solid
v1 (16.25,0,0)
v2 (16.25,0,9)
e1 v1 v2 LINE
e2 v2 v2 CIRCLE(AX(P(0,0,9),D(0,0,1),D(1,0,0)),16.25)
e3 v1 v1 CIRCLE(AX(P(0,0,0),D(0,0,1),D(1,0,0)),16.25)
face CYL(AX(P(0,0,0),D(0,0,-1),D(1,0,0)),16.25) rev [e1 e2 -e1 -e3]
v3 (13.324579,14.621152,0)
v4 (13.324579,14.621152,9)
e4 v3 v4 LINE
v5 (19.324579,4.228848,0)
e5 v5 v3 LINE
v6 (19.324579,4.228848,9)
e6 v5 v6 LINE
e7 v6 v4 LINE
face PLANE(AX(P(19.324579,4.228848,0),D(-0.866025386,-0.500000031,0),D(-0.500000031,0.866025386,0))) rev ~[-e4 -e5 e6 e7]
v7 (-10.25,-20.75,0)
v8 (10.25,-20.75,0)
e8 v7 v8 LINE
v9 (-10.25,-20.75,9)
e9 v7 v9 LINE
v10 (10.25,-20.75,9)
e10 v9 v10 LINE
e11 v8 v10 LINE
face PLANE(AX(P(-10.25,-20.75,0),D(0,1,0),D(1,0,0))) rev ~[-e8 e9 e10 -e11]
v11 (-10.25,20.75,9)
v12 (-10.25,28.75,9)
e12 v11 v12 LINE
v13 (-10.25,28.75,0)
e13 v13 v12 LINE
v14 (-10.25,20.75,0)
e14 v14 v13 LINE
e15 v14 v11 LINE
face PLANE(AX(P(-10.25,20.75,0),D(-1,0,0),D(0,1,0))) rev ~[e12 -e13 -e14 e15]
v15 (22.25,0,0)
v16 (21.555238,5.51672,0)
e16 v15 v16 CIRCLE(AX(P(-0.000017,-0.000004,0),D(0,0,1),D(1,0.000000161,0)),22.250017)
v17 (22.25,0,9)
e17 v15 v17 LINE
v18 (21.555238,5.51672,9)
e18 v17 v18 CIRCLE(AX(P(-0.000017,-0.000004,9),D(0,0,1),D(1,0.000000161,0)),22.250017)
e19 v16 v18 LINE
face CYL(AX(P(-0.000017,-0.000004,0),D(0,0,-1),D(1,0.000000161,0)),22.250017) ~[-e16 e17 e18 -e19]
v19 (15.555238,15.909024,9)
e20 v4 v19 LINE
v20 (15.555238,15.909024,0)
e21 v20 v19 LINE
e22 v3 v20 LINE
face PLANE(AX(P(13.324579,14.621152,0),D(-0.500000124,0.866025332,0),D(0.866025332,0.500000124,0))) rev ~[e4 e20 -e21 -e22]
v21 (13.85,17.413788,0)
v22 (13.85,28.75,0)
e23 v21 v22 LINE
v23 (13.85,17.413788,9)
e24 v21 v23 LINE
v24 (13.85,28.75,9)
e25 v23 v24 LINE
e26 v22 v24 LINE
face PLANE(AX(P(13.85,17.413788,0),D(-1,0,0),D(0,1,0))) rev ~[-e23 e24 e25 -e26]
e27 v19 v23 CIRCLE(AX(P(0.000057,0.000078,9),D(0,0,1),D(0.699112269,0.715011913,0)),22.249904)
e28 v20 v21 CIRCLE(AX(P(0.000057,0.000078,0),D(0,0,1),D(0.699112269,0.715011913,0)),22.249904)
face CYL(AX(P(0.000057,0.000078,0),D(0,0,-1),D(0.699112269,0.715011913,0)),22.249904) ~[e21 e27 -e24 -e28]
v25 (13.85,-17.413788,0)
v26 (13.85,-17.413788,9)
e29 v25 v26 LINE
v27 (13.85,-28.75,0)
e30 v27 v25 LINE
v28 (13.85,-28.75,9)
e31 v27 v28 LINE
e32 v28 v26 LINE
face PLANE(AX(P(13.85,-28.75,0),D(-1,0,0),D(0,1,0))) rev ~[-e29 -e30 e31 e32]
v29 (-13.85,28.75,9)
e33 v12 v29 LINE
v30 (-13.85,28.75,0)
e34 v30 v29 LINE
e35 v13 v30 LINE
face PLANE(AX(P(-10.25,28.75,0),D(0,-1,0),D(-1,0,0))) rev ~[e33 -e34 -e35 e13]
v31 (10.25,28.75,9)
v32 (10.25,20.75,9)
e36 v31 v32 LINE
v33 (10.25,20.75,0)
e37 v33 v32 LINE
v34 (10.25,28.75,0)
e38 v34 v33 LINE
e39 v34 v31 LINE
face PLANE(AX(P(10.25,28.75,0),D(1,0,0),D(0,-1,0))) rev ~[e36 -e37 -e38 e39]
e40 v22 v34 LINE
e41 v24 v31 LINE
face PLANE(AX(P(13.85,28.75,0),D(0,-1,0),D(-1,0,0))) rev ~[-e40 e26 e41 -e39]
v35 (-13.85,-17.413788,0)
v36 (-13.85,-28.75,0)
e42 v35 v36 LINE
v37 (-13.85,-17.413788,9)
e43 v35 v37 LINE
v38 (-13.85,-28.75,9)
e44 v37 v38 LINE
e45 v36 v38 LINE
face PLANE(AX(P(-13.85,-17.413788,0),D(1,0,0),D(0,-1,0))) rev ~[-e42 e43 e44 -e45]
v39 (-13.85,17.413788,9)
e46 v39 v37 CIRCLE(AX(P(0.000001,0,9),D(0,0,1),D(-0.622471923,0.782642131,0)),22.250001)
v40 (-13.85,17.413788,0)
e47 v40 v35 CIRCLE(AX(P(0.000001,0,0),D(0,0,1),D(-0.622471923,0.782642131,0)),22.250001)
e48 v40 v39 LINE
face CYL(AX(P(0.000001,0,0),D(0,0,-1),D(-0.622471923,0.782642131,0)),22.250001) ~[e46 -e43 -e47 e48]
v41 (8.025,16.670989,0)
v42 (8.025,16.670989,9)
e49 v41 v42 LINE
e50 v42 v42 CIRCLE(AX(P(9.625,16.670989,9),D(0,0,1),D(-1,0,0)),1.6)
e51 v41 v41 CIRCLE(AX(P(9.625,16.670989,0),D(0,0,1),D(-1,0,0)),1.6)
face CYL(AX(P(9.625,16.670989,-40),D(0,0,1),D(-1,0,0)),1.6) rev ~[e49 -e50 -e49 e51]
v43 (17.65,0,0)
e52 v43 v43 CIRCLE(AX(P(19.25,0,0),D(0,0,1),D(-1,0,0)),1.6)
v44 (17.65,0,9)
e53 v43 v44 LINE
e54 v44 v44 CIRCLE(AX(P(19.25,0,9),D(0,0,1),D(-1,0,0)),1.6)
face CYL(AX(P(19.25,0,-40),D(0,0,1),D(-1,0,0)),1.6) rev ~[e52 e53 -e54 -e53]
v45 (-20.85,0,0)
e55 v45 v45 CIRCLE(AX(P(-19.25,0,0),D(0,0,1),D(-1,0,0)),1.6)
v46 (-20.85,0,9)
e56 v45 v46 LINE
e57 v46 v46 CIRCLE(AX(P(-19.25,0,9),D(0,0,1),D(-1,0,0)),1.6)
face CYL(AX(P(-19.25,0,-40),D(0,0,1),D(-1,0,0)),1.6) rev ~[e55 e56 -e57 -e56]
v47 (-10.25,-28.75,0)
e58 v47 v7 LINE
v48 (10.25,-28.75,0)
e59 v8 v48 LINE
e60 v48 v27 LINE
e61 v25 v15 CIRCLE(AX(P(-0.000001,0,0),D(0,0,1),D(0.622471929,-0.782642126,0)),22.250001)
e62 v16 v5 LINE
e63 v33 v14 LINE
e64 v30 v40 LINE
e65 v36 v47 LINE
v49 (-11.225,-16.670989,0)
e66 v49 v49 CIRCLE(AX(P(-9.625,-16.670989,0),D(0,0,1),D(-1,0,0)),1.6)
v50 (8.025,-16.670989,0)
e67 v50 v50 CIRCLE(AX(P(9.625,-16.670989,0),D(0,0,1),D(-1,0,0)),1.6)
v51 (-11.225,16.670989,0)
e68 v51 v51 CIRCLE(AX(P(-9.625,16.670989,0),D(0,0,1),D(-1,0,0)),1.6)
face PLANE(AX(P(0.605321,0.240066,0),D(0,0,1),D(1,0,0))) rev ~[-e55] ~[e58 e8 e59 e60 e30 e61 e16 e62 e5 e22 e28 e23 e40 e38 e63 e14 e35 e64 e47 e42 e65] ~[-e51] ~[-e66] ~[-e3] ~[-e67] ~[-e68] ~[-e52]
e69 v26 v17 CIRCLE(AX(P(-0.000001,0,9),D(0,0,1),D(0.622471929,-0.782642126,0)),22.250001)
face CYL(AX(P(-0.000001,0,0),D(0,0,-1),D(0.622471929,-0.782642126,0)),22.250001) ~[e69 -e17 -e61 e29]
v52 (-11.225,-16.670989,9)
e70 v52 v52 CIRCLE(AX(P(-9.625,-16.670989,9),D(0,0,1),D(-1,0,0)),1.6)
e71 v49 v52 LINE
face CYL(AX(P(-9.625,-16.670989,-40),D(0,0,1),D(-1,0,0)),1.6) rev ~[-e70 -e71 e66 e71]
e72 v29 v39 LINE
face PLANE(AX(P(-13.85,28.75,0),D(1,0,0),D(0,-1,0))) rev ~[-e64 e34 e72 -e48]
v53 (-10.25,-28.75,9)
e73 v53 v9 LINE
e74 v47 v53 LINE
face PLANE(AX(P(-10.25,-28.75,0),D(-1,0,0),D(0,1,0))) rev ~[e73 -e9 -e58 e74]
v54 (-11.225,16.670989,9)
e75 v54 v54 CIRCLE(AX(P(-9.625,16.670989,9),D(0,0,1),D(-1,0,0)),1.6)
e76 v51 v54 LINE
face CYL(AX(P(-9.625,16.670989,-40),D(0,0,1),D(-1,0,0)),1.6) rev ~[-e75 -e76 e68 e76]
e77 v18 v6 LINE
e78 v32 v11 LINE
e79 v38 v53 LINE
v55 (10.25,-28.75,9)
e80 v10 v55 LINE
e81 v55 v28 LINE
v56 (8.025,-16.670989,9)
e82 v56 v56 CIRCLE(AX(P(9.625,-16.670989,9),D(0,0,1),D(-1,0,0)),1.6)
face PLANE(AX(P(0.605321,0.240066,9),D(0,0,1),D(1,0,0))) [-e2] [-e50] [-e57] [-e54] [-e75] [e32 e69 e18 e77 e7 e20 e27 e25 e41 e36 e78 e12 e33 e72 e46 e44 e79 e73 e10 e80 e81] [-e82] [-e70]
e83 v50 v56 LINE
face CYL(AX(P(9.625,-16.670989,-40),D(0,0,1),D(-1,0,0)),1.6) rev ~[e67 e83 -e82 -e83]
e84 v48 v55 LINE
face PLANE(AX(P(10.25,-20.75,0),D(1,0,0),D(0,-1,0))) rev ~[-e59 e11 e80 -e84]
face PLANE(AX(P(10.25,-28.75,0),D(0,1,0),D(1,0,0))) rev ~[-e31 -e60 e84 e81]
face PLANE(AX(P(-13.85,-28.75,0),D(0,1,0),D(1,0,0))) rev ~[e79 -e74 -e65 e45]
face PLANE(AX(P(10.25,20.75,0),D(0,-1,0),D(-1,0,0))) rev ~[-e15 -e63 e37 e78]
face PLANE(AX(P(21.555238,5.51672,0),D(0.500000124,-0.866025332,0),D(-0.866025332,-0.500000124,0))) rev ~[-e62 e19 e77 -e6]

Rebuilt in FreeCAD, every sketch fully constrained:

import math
import FreeCAD as App
import Part
import Sketcher

V = App.Vector

doc = App.newDocument("Part")
body = doc.addObject("PartDesign::Body", "Body")

# Sketch on XY plane
sketch1 = body.newObject("Sketcher::SketchObject", "Sketch")
sketch1.AttachmentSupport = (doc.getObject("XY_Plane"), [""])
sketch1.MapMode = "FlatFace"
sketch1.addGeometry(Part.ArcOfCircle(Part.Circle(V(-0.000001, 0, 0), V(0, 0, 1), 22.250001), math.radians(-51.503127), math.radians(0)), False)
sketch1.addGeometry(Part.ArcOfCircle(Part.Circle(V(-0.000017, -0.000004, 0), V(0, 0, 1), 22.250017), math.radians(0.000009), math.radians(14.35579)), False)
sketch1.addGeometry(Part.LineSegment(V(21.555238, 5.51672, 0), V(19.324579, 4.228848, 0)), False)
sketch1.addGeometry(Part.LineSegment(V(19.324579, 4.228848, 0), V(13.324579, 14.621152, 0)), False)
sketch1.addGeometry(Part.LineSegment(V(13.324579, 14.621152, 0), V(15.555238, 15.909024, 0)), False)
sketch1.addGeometry(Part.ArcOfCircle(Part.Circle(V(0.000057, 0.000078, 0), V(0, 0, 1), 22.249904), math.radians(45.644175), math.radians(51.503119)), False)
sketch1.addGeometry(Part.LineSegment(V(13.85, 17.413788, 0), V(13.85, 28.75, 0)), False)
sketch1.addGeometry(Part.LineSegment(V(13.85, 28.75, 0), V(10.25, 28.75, 0)), False)
sketch1.addGeometry(Part.LineSegment(V(10.25, 28.75, 0), V(10.25, 20.75, 0)), False)
sketch1.addGeometry(Part.LineSegment(V(10.25, 20.75, 0), V(-10.25, 20.75, 0)), False)
sketch1.addGeometry(Part.LineSegment(V(-10.25, 20.75, 0), V(-10.25, 28.75, 0)), False)
sketch1.addGeometry(Part.LineSegment(V(-10.25, 28.75, 0), V(-13.85, 28.75, 0)), False)
sketch1.addGeometry(Part.LineSegment(V(-13.85, 28.75, 0), V(-13.85, 17.413788, 0)), False)
sketch1.addGeometry(Part.ArcOfCircle(Part.Circle(V(0.000001, 0, 0), V(0, 0, 1), 22.250001), math.radians(128.496873), math.radians(231.503127)), False)
sketch1.addGeometry(Part.LineSegment(V(-13.85, -17.413788, 0), V(-13.85, -28.75, 0)), False)
sketch1.addGeometry(Part.LineSegment(V(-13.85, -28.75, 0), V(-10.25, -28.75, 0)), False)
sketch1.addGeometry(Part.LineSegment(V(-10.25, -28.75, 0), V(-10.25, -20.75, 0)), False)
sketch1.addGeometry(Part.LineSegment(V(-10.25, -20.75, 0), V(10.25, -20.75, 0)), False)
sketch1.addGeometry(Part.LineSegment(V(10.25, -20.75, 0), V(10.25, -28.75, 0)), False)
sketch1.addGeometry(Part.LineSegment(V(10.25, -28.75, 0), V(13.85, -28.75, 0)), False)
sketch1.addGeometry(Part.LineSegment(V(13.85, -28.75, 0), V(13.85, -17.413788, 0)), False)
sketch1.addGeometry(Part.Circle(V(0, 0, 0), V(0, 0, 1), 16.25), False)
sketch1.addConstraint(Sketcher.Constraint("Coincident", 0, 2, 1, 1))
sketch1.addConstraint(Sketcher.Constraint("Coincident", 1, 2, 2, 1))
sketch1.addConstraint(Sketcher.Constraint("Coincident", 2, 2, 3, 1))
sketch1.addConstraint(Sketcher.Constraint("Coincident", 3, 2, 4, 1))
sketch1.addConstraint(Sketcher.Constraint("Coincident", 4, 2, 5, 1))
sketch1.addConstraint(Sketcher.Constraint("Coincident", 5, 2, 6, 1))
sketch1.addConstraint(Sketcher.Constraint("Coincident", 6, 2, 7, 1))
sketch1.addConstraint(Sketcher.Constraint("Coincident", 7, 2, 8, 1))
sketch1.addConstraint(Sketcher.Constraint("Coincident", 8, 2, 9, 1))
sketch1.addConstraint(Sketcher.Constraint("Coincident", 9, 2, 10, 1))
sketch1.addConstraint(Sketcher.Constraint("Coincident", 10, 2, 11, 1))
sketch1.addConstraint(Sketcher.Constraint("Coincident", 11, 2, 12, 1))
sketch1.addConstraint(Sketcher.Constraint("Coincident", 12, 2, 13, 1))
sketch1.addConstraint(Sketcher.Constraint("Coincident", 13, 2, 14, 1))
sketch1.addConstraint(Sketcher.Constraint("Coincident", 14, 2, 15, 1))
sketch1.addConstraint(Sketcher.Constraint("Coincident", 15, 2, 16, 1))
sketch1.addConstraint(Sketcher.Constraint("Coincident", 16, 2, 17, 1))
sketch1.addConstraint(Sketcher.Constraint("Coincident", 17, 2, 18, 1))
sketch1.addConstraint(Sketcher.Constraint("Coincident", 18, 2, 19, 1))
sketch1.addConstraint(Sketcher.Constraint("Coincident", 19, 2, 20, 1))
sketch1.addConstraint(Sketcher.Constraint("Coincident", 20, 2, 0, 1))
sketch1.addConstraint(Sketcher.Constraint("Vertical", 6))
sketch1.addConstraint(Sketcher.Constraint("Horizontal", 7))
sketch1.addConstraint(Sketcher.Constraint("Vertical", 8))
sketch1.addConstraint(Sketcher.Constraint("Horizontal", 9))
sketch1.addConstraint(Sketcher.Constraint("Vertical", 10))
sketch1.addConstraint(Sketcher.Constraint("Horizontal", 11))
sketch1.addConstraint(Sketcher.Constraint("Vertical", 12))
sketch1.addConstraint(Sketcher.Constraint("Vertical", 14))
sketch1.addConstraint(Sketcher.Constraint("Horizontal", 15))
sketch1.addConstraint(Sketcher.Constraint("Vertical", 16))
sketch1.addConstraint(Sketcher.Constraint("Horizontal", 17))
sketch1.addConstraint(Sketcher.Constraint("Vertical", 18))
sketch1.addConstraint(Sketcher.Constraint("Horizontal", 19))
sketch1.addConstraint(Sketcher.Constraint("Vertical", 20))
sketch1.addConstraint(Sketcher.Constraint("Coincident", 0, 3, -1, 1))
sketch1.addConstraint(Sketcher.Constraint("Coincident", 13, 3, -1, 1))
sketch1.addConstraint(Sketcher.Constraint("Coincident", 21, 3, -1, 1))
sketch1.addConstraint(Sketcher.Constraint("PointOnObject", 0, 2, -1))
sketch1.addConstraint(Sketcher.Constraint("Diameter", 21, 32.5))
sketch1.addConstraint(Sketcher.Constraint("DistanceY", 8, 2, 8, 1, 8.0))
sketch1.addConstraint(Sketcher.Constraint("DistanceY", 10, 1, 10, 2, 8.0))
sketch1.addConstraint(Sketcher.Constraint("DistanceY", 16, 1, 16, 2, 8.0))
sketch1.addConstraint(Sketcher.Constraint("DistanceY", 18, 2, 18, 1, 8.0))
sketch1.addConstraint(Sketcher.Constraint("Radius", 0, 22.250001))
sketch1.addConstraint(Sketcher.Constraint("Radius", 13, 22.250001))
sketch1.addConstraint(Sketcher.Constraint("Distance", 3, 11.999999))
sketch1.addConstraint(Sketcher.Constraint("DistanceX", 7, 2, 7, 1, 3.6))
sketch1.addConstraint(Sketcher.Constraint("DistanceX", 9, 2, 9, 1, 20.5))
sketch1.addConstraint(Sketcher.Constraint("DistanceX", 11, 2, 11, 1, 3.6))
sketch1.addConstraint(Sketcher.Constraint("DistanceX", 15, 1, 15, 2, 3.6))
sketch1.addConstraint(Sketcher.Constraint("DistanceX", 17, 1, 17, 2, 20.5))
sketch1.addConstraint(Sketcher.Constraint("DistanceX", 19, 1, 19, 2, 3.6))
sketch1.addConstraint(Sketcher.Constraint("DistanceX", 3, 2, 2, 2, 6.0))
sketch1.addConstraint(Sketcher.Constraint("DistanceX", 4, 2, 1, 2, 6.0))
sketch1.addConstraint(Sketcher.Constraint("DistanceX", 5, 2, 0, 2, 8.4))
sketch1.addConstraint(Sketcher.Constraint("DistanceX", 20, 2, 0, 2, 8.4))
sketch1.addConstraint(Sketcher.Constraint("DistanceY", -1, 1, 6, 2, 28.75))
sketch1.addConstraint(Sketcher.Constraint("DistanceY", 14, 2, -1, 1, 28.75))
sketch1.addConstraint(Sketcher.Constraint("Radius", 1, 22.250017))
sketch1.addConstraint(Sketcher.Constraint("Radius", 5, 22.249904))
sketch1.addConstraint(Sketcher.Constraint("DistanceY", 6, 1, 6, 2, 11.336212))
sketch1.addConstraint(Sketcher.Constraint("DistanceX", -1, 1, 1, 2, 21.555238))
sketch1.addConstraint(Sketcher.Constraint("DistanceY", -1, 1, 1, 2, 5.51672))
sketch1.addConstraint(Sketcher.Constraint("DistanceX", -1, 1, 2, 2, 19.324579))
sketch1.addConstraint(Sketcher.Constraint("DistanceX", 5, 3, 1, 2, 21.555181))
sketch1.addConstraint(Sketcher.Constraint("DistanceY", 5, 3, 2, 2, 4.22877))
pad1 = body.newObject("PartDesign::Pad", "Pad")
pad1.Profile = sketch1
pad1.Length = 9

# Sketch on XY plane
sketch2 = body.newObject("Sketcher::SketchObject", "Sketch001")
sketch2.AttachmentSupport = (doc.getObject("XY_Plane"), [""])
sketch2.MapMode = "FlatFace"
sketch2.addGeometry(Part.Circle(V(-9.6, 16.7, 0), V(0, 0, 1), 1.6), False)
sketch2.addGeometry(Part.Circle(V(9.6, 16.7, 0), V(0, 0, 1), 1.6), False)
sketch2.addGeometry(Part.Circle(V(19.2, 0, 0), V(0, 0, 1), 1.6), False)
sketch2.addGeometry(Part.Circle(V(9.6, -16.7, 0), V(0, 0, 1), 1.6), False)
sketch2.addGeometry(Part.Circle(V(-9.6, -16.7, 0), V(0, 0, 1), 1.6), False)
sketch2.addGeometry(Part.Circle(V(-19.2, 0, 0), V(0, 0, 1), 1.6), False)
sketch2.addConstraint(Sketcher.Constraint("Equal", 0, 1))
sketch2.addConstraint(Sketcher.Constraint("Equal", 1, 2))
sketch2.addConstraint(Sketcher.Constraint("Equal", 2, 3))
sketch2.addConstraint(Sketcher.Constraint("Equal", 3, 4))
sketch2.addConstraint(Sketcher.Constraint("Equal", 4, 5))
sketch2.addConstraint(Sketcher.Constraint("Symmetric", 0, 3, 3, 3, -1, 1))
sketch2.addConstraint(Sketcher.Constraint("Symmetric", 1, 3, 4, 3, -1, 1))
sketch2.addConstraint(Sketcher.Constraint("Symmetric", 2, 3, 5, 3, -1, 1))
sketch2.addConstraint(Sketcher.Constraint("Symmetric", 0, 3, 1, 3, -2))
sketch2.addConstraint(Sketcher.Constraint("PointOnObject", 2, 3, -1))
sketch2.addConstraint(Sketcher.Constraint("Diameter", 0, 3.2))
sketch2.addConstraint(Sketcher.Constraint("DistanceX", 5, 3, 2, 3, 38.5))
sketch2.addConstraint(Sketcher.Constraint("DistanceX", 0, 3, 1, 3, 19.25))
sketch2.addConstraint(Sketcher.Constraint("DistanceY", -1, 1, 0, 3, 16.670989))
doc.recompute()
hole = body.newObject("PartDesign::Hole", "Hole")
hole.Profile = sketch2
hole.ThreadType = "None"
hole.Diameter = 3.2
hole.DepthType = "Dimension"
hole.Depth = 40
hole.DrillPoint = "Flat"
hole.Reversed = True

doc.recompute()
